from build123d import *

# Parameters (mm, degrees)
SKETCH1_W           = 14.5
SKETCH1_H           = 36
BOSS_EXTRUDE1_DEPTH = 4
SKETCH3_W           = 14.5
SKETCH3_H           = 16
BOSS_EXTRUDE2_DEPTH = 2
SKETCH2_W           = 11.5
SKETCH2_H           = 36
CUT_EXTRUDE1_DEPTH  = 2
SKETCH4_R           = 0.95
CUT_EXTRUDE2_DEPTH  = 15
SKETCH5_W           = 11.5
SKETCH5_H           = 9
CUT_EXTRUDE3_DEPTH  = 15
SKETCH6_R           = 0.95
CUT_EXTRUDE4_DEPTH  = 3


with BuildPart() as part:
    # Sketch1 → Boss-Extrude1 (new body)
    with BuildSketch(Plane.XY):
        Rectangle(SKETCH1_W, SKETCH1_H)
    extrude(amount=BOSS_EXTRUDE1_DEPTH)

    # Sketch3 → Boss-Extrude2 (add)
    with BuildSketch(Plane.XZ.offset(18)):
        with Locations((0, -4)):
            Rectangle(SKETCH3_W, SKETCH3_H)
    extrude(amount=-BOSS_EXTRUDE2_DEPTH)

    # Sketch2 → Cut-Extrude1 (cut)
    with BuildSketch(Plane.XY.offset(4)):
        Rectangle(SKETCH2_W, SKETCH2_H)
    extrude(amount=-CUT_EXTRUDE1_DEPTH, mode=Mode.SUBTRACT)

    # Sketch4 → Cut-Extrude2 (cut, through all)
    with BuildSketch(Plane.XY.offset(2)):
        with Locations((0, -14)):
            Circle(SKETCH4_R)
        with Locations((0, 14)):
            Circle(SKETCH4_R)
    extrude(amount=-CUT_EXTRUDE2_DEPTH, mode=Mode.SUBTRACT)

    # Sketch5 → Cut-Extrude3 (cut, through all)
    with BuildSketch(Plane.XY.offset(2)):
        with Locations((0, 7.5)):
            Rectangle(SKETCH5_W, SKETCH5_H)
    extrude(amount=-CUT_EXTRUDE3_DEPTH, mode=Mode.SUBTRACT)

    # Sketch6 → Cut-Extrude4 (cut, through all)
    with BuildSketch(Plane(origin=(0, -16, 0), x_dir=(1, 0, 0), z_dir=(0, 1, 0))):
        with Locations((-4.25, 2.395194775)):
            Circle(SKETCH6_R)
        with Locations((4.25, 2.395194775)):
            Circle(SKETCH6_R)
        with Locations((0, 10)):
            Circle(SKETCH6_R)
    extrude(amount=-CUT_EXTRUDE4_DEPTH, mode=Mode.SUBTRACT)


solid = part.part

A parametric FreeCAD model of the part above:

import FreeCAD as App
import Part
import Sketcher

doc = App.newDocument("Part")
body = doc.addObject("PartDesign::Body", "Body")

sketch1 = doc.addObject("Sketcher::SketchObject", "Sketch")
body.addObject(sketch1)
sketch1.AttachmentSupport = (doc.XY_Plane, [""])
sketch1.MapMode = "FlatFace"
sketch1.addGeometry([
    Part.LineSegment(App.Vector(-7.25, 18, 0), App.Vector(-7.25, -18, 0)),
    Part.LineSegment(App.Vector(-7.25, -18, 0), App.Vector(7.25, -18, 0)),
    Part.LineSegment(App.Vector(7.25, -18, 0), App.Vector(7.25, 18, 0)),
    Part.LineSegment(App.Vector(7.25, 18, 0), App.Vector(-7.25, 18, 0)),
], False)
sketch1.addConstraint([
    Sketcher.Constraint("Coincident", 0, 2, 1, 1),
    Sketcher.Constraint("Coincident", 1, 2, 2, 1),
    Sketcher.Constraint("Coincident", 2, 2, 3, 1),
    Sketcher.Constraint("Coincident", 3, 2, 0, 1),
    Sketcher.Constraint("Vertical", 0),
    Sketcher.Constraint("Horizontal", 1),
    Sketcher.Constraint("Vertical", 2),
    Sketcher.Constraint("Horizontal", 3),
    Sketcher.Constraint("Symmetric", 0, 2, 2, 2, -1, 1),
    Sketcher.Constraint("DistanceY", 0, 2, 0, 1, 36.0),
    Sketcher.Constraint("DistanceX", 1, 1, 1, 2, 14.5),
])
pad1 = doc.addObject("PartDesign::Pad", "Pad")
body.addObject(pad1)
pad1.Profile = sketch1
pad1.Length = 4

sketch2 = doc.addObject("Sketcher::SketchObject", "Sketch001")
body.addObject(sketch2)
sketch2.AttachmentSupport = (doc.XZ_Plane, [""])
sketch2.MapMode = "FlatFace"
sketch2.AttachmentOffset = App.Placement(App.Vector(0, 0, 18), App.Rotation())
sketch2.addGeometry([
    Part.LineSegment(App.Vector(-7.25, 4, 0), App.Vector(-7.25, -12, 0)),
    Part.LineSegment(App.Vector(-7.25, -12, 0), App.Vector(7.25, -12, 0)),
    Part.LineSegment(App.Vector(7.25, -12, 0), App.Vector(7.25, 4, 0)),
    Part.LineSegment(App.Vector(7.25, 4, 0), App.Vector(-7.25, 4, 0)),
], False)
sketch2.addConstraint([
    Sketcher.Constraint("Coincident", 0, 2, 1, 1),
    Sketcher.Constraint("Coincident", 1, 2, 2, 1),
    Sketcher.Constraint("Coincident", 2, 2, 3, 1),
    Sketcher.Constraint("Coincident", 3, 2, 0, 1),
    Sketcher.Constraint("Vertical", 0),
    Sketcher.Constraint("Horizontal", 1),
    Sketcher.Constraint("Vertical", 2),
    Sketcher.Constraint("Horizontal", 3),
    Sketcher.Constraint("DistanceY", 0, 2, 0, 1, 16.0),
    Sketcher.Constraint("DistanceX", 1, 1, 1, 2, 14.5),
    Sketcher.Constraint("DistanceY", 0, 2, -1, 1, 12.0),
    Sketcher.Constraint("DistanceX", 0, 2, -1, 1, 7.25),
])
pad2 = doc.addObject("PartDesign::Pad", "Pad001")
body.addObject(pad2)
pad2.Profile = sketch2
pad2.Length = 2
pad2.Reversed = True

sketch3 = doc.addObject("Sketcher::SketchObject", "Sketch002")
body.addObject(sketch3)
sketch3.AttachmentSupport = (doc.XY_Plane, [""])
sketch3.MapMode = "FlatFace"
sketch3.AttachmentOffset = App.Placement(App.Vector(0, 0, 4), App.Rotation())
sketch3.addGeometry([
    Part.LineSegment(App.Vector(-5.75, 18, 0), App.Vector(-5.75, -18, 0)),
    Part.LineSegment(App.Vector(-5.75, -18, 0), App.Vector(5.75, -18, 0)),
    Part.LineSegment(App.Vector(5.75, -18, 0), App.Vector(5.75, 18, 0)),
    Part.LineSegment(App.Vector(5.75, 18, 0), App.Vector(-5.75, 18, 0)),
], False)
sketch3.addConstraint([
    Sketcher.Constraint("Coincident", 0, 2, 1, 1),
    Sketcher.Constraint("Coincident", 1, 2, 2, 1),
    Sketcher.Constraint("Coincident", 2, 2, 3, 1),
    Sketcher.Constraint("Coincident", 3, 2, 0, 1),
    Sketcher.Constraint("Vertical", 0),
    Sketcher.Constraint("Horizontal", 1),
    Sketcher.Constraint("Vertical", 2),
    Sketcher.Constraint("Horizontal", 3),
    Sketcher.Constraint("Symmetric", 0, 2, 2, 2, -1, 1),
    Sketcher.Constraint("DistanceY", 0, 2, 0, 1, 36.0),
    Sketcher.Constraint("DistanceX", 1, 1, 1, 2, 11.5),
])
pocket1 = doc.addObject("PartDesign::Pocket", "Pocket")
body.addObject(pocket1)
pocket1.Profile = sketch3
pocket1.Length = 2

sketch4 = doc.addObject("Sketcher::SketchObject", "Sketch003")
body.addObject(sketch4)
sketch4.AttachmentSupport = (doc.XY_Plane, [""])
sketch4.MapMode = "FlatFace"
sketch4.AttachmentOffset = App.Placement(App.Vector(0, 0, 2), App.Rotation())
sketch4.addGeometry([
    Part.Circle(App.Vector(0, -14, 0), App.Vector(0, 0, 1), 0.95),
    Part.Circle(App.Vector(0, 14, 0), App.Vector(0, 0, 1), 0.95),
], False)
sketch4.addConstraint([
    Sketcher.Constraint("Equal", 0, 1),
    Sketcher.Constraint("Symmetric", 0, 3, 1, 3, -1, 1),
    Sketcher.Constraint("PointOnObject", 0, 3, -2),
    Sketcher.Constraint("Diameter", 0, 1.9),
    Sketcher.Constraint("DistanceY", 0, 3, -1, 1, 14.0),
])
pocket2 = doc.addObject("PartDesign::Pocket", "Pocket001")
body.addObject(pocket2)
pocket2.Profile = sketch4
pocket2.Type = "ThroughAll"

sketch5 = doc.addObject("Sketcher::SketchObject", "Sketch004")
body.addObject(sketch5)
sketch5.AttachmentSupport = (doc.XY_Plane, [""])
sketch5.MapMode = "FlatFace"
sketch5.AttachmentOffset = App.Placement(App.Vector(0, 0, 2), App.Rotation())
sketch5.addGeometry([
    Part.LineSegment(App.Vector(-5.75, 12, 0), App.Vector(-5.75, 3, 0)),
    Part.LineSegment(App.Vector(-5.75, 3, 0), App.Vector(5.75, 3, 0)),
    Part.LineSegment(App.Vector(5.75, 3, 0), App.Vector(5.75, 12, 0)),
    Part.LineSegment(App.Vector(5.75, 12, 0), App.Vector(-5.75, 12, 0)),
], False)
sketch5.addConstraint([
    Sketcher.Constraint("Coincident", 0, 2, 1, 1),
    Sketcher.Constraint("Coincident", 1, 2, 2, 1),
    Sketcher.Constraint("Coincident", 2, 2, 3, 1),
    Sketcher.Constraint("Coincident", 3, 2, 0, 1),
    Sketcher.Constraint("Vertical", 0),
    Sketcher.Constraint("Horizontal", 1),
    Sketcher.Constraint("Vertical", 2),
    Sketcher.Constraint("Horizontal", 3),
    Sketcher.Constraint("DistanceY", 0, 2, 0, 1, 9.0),
    Sketcher.Constraint("DistanceX", 1, 1, 1, 2, 11.5),
    Sketcher.Constraint("DistanceY", -1, 1, 0, 2, 3.0),
    Sketcher.Constraint("DistanceX", 0, 2, -1, 1, 5.75),
])
pocket3 = doc.addObject("PartDesign::Pocket", "Pocket002")
body.addObject(pocket3)
pocket3.Profile = sketch5
pocket3.Type = "ThroughAll"

sketch6 = doc.addObject("Sketcher::SketchObject", "Sketch005")
body.addObject(sketch6)
sketch6.AttachmentSupport = (doc.XZ_Plane, [""])
sketch6.MapMode = "FlatFace"
sketch6.AttachmentOffset = App.Placement(App.Vector(0, 0, 16), App.Rotation())
sketch6.addGeometry([
    Part.Circle(App.Vector(-4.25, -2.395195, 0), App.Vector(0, 0, 1), 0.95),
    Part.Circle(App.Vector(4.25, -2.395195, 0), App.Vector(0, 0, 1), 0.95),
    Part.Circle(App.Vector(0, -10, 0), App.Vector(0, 0, 1), 0.95),
], False)
sketch6.addConstraint([
    Sketcher.Constraint("Equal", 0, 1),
    Sketcher.Constraint("Equal", 1, 2),
    Sketcher.Constraint("Symmetric", 0, 3, 1, 3, -2),
    Sketcher.Constraint("PointOnObject", 2, 3, -2),
    Sketcher.Constraint("Diameter", 0, 1.9),
    Sketcher.Constraint("DistanceY", 2, 3, -1, 1, 10.0),
    Sketcher.Constraint("DistanceX", 0, 3, 1, 3, 8.5),
    Sketcher.Constraint("DistanceY", 0, 3, -1, 1, 2.395195),
])
pocket4 = doc.addObject("PartDesign::Pocket", "Pocket003")
body.addObject(pocket4)
pocket4.Profile = sketch6
pocket4.Type = "ThroughAll"
pocket4.Reversed = True

doc.recompute()
